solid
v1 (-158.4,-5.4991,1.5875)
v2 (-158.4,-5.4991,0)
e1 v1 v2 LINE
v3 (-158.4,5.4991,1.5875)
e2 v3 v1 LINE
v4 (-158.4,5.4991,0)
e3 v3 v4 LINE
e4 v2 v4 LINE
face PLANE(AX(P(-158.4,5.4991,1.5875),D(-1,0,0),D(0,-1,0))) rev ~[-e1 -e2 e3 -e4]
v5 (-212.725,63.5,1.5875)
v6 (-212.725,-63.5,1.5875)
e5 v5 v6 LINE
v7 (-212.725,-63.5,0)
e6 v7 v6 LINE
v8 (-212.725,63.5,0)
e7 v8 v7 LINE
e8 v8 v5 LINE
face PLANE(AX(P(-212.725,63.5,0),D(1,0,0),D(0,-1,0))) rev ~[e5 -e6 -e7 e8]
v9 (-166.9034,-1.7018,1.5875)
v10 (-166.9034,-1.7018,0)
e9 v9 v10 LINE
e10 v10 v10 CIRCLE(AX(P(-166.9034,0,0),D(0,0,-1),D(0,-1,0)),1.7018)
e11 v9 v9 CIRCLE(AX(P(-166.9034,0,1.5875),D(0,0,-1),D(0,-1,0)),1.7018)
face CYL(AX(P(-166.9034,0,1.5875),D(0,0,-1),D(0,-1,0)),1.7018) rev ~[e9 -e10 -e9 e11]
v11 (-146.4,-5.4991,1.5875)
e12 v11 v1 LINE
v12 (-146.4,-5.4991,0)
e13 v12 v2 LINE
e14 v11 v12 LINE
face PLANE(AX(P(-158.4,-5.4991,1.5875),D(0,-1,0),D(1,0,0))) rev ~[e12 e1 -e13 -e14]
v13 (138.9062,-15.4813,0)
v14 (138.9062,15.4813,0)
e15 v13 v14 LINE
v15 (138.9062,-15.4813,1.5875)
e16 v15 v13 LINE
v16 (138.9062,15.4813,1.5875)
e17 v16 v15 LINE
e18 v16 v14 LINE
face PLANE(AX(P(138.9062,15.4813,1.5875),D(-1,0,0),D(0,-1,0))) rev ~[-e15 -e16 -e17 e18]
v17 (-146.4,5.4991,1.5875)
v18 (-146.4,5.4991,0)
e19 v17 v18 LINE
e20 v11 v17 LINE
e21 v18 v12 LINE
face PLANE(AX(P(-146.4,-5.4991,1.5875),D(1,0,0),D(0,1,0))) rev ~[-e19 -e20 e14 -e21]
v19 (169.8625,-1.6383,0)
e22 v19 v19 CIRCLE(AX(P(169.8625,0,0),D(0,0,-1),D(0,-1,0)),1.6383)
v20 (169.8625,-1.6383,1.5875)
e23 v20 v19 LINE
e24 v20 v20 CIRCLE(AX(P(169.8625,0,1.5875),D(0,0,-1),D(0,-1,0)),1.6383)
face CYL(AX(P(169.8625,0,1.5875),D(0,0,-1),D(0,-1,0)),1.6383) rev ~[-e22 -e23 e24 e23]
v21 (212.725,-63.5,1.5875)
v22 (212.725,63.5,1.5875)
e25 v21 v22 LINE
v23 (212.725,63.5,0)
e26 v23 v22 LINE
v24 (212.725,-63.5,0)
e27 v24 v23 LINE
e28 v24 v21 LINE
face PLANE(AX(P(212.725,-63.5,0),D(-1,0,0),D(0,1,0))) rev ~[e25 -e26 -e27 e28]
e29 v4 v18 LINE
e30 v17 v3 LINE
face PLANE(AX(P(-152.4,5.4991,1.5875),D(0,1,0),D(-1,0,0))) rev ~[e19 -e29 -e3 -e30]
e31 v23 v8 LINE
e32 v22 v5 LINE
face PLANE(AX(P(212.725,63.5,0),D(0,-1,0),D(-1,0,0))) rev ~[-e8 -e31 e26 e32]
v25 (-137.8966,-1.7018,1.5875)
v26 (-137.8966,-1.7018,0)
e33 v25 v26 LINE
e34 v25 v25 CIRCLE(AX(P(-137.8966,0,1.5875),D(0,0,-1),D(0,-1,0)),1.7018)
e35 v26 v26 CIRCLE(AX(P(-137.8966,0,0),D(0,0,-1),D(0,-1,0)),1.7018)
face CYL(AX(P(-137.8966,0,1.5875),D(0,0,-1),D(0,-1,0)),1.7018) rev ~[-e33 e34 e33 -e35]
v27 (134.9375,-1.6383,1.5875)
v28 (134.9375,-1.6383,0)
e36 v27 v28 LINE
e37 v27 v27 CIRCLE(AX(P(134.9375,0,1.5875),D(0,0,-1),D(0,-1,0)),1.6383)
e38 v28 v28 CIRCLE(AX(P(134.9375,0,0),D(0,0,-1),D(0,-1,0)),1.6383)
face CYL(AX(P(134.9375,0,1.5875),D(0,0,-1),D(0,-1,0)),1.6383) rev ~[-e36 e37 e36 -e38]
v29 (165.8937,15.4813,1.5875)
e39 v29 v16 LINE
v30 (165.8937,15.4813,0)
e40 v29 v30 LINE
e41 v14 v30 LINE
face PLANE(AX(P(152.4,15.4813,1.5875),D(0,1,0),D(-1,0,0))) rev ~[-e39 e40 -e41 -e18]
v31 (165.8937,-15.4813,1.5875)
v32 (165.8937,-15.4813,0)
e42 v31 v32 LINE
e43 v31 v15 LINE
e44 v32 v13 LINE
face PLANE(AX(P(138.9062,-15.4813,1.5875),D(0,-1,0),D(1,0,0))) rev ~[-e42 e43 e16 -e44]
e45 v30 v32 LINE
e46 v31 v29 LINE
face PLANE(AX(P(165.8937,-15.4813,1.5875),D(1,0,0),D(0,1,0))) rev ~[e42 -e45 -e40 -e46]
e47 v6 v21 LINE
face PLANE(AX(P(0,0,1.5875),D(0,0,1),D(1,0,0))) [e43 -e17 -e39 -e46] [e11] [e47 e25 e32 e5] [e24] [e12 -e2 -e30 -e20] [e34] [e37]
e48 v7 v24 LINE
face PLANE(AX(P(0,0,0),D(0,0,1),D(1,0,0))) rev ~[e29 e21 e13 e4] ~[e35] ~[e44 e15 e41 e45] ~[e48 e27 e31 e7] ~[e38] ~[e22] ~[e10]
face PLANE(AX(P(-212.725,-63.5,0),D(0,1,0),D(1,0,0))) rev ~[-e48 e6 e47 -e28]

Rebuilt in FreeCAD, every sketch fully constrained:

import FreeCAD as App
import Part
import Sketcher

V = App.Vector
Q = App.Units.Quantity


def add_polygon(sketch, points):
    """Adds a closed chain of lines whose ends are joined by coincident constraints."""
    first, n = sketch.GeometryCount, len(points)
    for a, b in zip(points, points[1:] + points[:1]):
        sketch.addGeometry(Part.LineSegment(App.Vector(*a, 0), App.Vector(*b, 0)), False)
    for i in range(n):
        sketch.addConstraint(Sketcher.Constraint("Coincident", first + i, 2, first + (i + 1) % n, 1))

doc = App.newDocument("Part")
body = doc.addObject("PartDesign::Body", "Body")

# Sketch on XY plane
sketch1 = body.newObject("Sketcher::SketchObject", "Sketch")
sketch1.AttachmentSupport = (doc.getObject("XY_Plane"), [""])
sketch1.MapMode = "FlatFace"
add_polygon(sketch1, [(-212.725, 63.5), (-212.725, -63.5), (212.725, -63.5), (212.725, 63.5)])  # lines 0-3
sketch1.addConstraint([
    Sketcher.Constraint("Vertical", 0),
    Sketcher.Constraint("Horizontal", 1),
    Sketcher.Constraint("Vertical", 2),
    Sketcher.Constraint("Horizontal", 3),
    Sketcher.Constraint("Symmetric", 0, 2, 2, 2, -1, 1),
    Sketcher.Constraint("DistanceY", 0, 2, 0, 1, Q("5 in")),
    Sketcher.Constraint("DistanceX", 1, 1, 1, 2, Q("16.75 in")),
])
pad1 = body.newObject("PartDesign::Pad", "Pad")
pad1.Profile = sketch1
pad1.Length = Q("0.0625 in")

# Sketch on XY plane
sketch2 = body.newObject("Sketcher::SketchObject", "Sketch001")
sketch2.AttachmentSupport = (doc.getObject("XY_Plane"), [""])
sketch2.MapMode = "FlatFace"
sketch2.AttachmentOffset = App.Placement(V(0, 0, 0.0625 * 25.4), App.Rotation())
add_polygon(sketch2, [(138.9062, -15.4813), (165.8937, -15.4813), (165.8937, 15.4813), (138.9062, 15.4813)])  # lines 0-3
add_polygon(sketch2, [(-158.4, -5.4991), (-146.4, -5.4991), (-146.4, 5.4991), (-158.4, 5.4991)])  # lines 4-7
sketch2.addConstraint([
    Sketcher.Constraint("Horizontal", 0),
    Sketcher.Constraint("Vertical", 1),
    Sketcher.Constraint("Horizontal", 2),
    Sketcher.Constraint("Vertical", 3),
    Sketcher.Constraint("Horizontal", 4),
    Sketcher.Constraint("Vertical", 5),
    Sketcher.Constraint("Horizontal", 6),
    Sketcher.Constraint("Vertical", 7),
    Sketcher.Constraint("DistanceX", 0, 1, 0, 2, Q("1.0625 in")),
    Sketcher.Constraint("DistanceY", 1, 1, 1, 2, Q("1.219 in")),
    Sketcher.Constraint("DistanceY", 5, 1, 5, 2, Q("0.433 in")),
    Sketcher.Constraint("DistanceX", 4, 1, 4, 2, 12.0),
    Sketcher.Constraint("DistanceX", -1, 1, 0, 2, Q("6.531248 in")),
    Sketcher.Constraint("DistanceY", 3, 2, 4, 2, Q("0.393 in")),
    Sketcher.Constraint("DistanceY", 0, 2, -1, 1, Q("0.6095 in")),
    Sketcher.Constraint("DistanceX", 4, 2, -1, 1, 146.4),
])
pocket1 = body.newObject("PartDesign::Pocket", "Pocket")
pocket1.Profile = sketch2
pocket1.Type = "UpToFirst"

# Sketch on XY plane
sketch3 = body.newObject("Sketcher::SketchObject", "Sketch002")
sketch3.AttachmentSupport = (doc.getObject("XY_Plane"), [""])
sketch3.MapMode = "FlatFace"
sketch3.AttachmentOffset = App.Placement(V(0, 0, 0.0625 * 25.4), App.Rotation())
sketch3.addGeometry([
    Part.Circle(V(-166.9034, 0, 0), V(0, 0, 1), 1.7018),
    Part.Circle(V(-137.8966, 0, 0), V(0, 0, 1), 1.7018),
], False)
sketch3.addConstraint([
    Sketcher.Constraint("Equal", 0, 1),
    Sketcher.Constraint("PointOnObject", 0, 3, -1),
    Sketcher.Constraint("PointOnObject", 1, 3, -1),
    Sketcher.Constraint("Diameter", 0, Q("0.134 in")),
    Sketcher.Constraint("DistanceX", 0, 3, -1, 1, Q("6.571 in")),
    Sketcher.Constraint("DistanceX", 1, 3, -1, 1, Q("5.429 in")),
])
doc.recompute()
hole = body.newObject("PartDesign::Hole", "Hole")
hole.Profile = sketch3
hole.ThreadType = "None"
hole.Diameter = Q("0.134 in")
hole.DepthType = "ThroughAll"

# Sketch on XY plane
sketch4 = body.newObject("Sketcher::SketchObject", "Sketch003")
sketch4.AttachmentSupport = (doc.getObject("XY_Plane"), [""])
sketch4.MapMode = "FlatFace"
sketch4.AttachmentOffset = App.Placement(V(0, 0, 0.0625 * 25.4), App.Rotation())
sketch4.addGeometry([
    Part.Circle(V(134.9375, 0, 0), V(0, 0, 1), 1.6383),
    Part.Circle(V(169.8625, 0, 0), V(0, 0, 1), 1.6383),
], False)
sketch4.addConstraint([
    Sketcher.Constraint("Equal", 0, 1),
    Sketcher.Constraint("PointOnObject", 0, 3, -1),
    Sketcher.Constraint("PointOnObject", 1, 3, -1),
    Sketcher.Constraint("Diameter", 0, Q("0.129 in")),
    Sketcher.Constraint("DistanceX", -1, 1, 0, 3, Q("5.3125 in")),
    Sketcher.Constraint("DistanceX", -1, 1, 1, 3, Q("6.6875 in")),
])
doc.recompute()
hole2 = body.newObject("PartDesign::Hole", "Hole001")
hole2.Profile = sketch4
hole2.ThreadType = "None"
hole2.Diameter = Q("0.129 in")
hole2.DepthType = "ThroughAll"

doc.recompute()
